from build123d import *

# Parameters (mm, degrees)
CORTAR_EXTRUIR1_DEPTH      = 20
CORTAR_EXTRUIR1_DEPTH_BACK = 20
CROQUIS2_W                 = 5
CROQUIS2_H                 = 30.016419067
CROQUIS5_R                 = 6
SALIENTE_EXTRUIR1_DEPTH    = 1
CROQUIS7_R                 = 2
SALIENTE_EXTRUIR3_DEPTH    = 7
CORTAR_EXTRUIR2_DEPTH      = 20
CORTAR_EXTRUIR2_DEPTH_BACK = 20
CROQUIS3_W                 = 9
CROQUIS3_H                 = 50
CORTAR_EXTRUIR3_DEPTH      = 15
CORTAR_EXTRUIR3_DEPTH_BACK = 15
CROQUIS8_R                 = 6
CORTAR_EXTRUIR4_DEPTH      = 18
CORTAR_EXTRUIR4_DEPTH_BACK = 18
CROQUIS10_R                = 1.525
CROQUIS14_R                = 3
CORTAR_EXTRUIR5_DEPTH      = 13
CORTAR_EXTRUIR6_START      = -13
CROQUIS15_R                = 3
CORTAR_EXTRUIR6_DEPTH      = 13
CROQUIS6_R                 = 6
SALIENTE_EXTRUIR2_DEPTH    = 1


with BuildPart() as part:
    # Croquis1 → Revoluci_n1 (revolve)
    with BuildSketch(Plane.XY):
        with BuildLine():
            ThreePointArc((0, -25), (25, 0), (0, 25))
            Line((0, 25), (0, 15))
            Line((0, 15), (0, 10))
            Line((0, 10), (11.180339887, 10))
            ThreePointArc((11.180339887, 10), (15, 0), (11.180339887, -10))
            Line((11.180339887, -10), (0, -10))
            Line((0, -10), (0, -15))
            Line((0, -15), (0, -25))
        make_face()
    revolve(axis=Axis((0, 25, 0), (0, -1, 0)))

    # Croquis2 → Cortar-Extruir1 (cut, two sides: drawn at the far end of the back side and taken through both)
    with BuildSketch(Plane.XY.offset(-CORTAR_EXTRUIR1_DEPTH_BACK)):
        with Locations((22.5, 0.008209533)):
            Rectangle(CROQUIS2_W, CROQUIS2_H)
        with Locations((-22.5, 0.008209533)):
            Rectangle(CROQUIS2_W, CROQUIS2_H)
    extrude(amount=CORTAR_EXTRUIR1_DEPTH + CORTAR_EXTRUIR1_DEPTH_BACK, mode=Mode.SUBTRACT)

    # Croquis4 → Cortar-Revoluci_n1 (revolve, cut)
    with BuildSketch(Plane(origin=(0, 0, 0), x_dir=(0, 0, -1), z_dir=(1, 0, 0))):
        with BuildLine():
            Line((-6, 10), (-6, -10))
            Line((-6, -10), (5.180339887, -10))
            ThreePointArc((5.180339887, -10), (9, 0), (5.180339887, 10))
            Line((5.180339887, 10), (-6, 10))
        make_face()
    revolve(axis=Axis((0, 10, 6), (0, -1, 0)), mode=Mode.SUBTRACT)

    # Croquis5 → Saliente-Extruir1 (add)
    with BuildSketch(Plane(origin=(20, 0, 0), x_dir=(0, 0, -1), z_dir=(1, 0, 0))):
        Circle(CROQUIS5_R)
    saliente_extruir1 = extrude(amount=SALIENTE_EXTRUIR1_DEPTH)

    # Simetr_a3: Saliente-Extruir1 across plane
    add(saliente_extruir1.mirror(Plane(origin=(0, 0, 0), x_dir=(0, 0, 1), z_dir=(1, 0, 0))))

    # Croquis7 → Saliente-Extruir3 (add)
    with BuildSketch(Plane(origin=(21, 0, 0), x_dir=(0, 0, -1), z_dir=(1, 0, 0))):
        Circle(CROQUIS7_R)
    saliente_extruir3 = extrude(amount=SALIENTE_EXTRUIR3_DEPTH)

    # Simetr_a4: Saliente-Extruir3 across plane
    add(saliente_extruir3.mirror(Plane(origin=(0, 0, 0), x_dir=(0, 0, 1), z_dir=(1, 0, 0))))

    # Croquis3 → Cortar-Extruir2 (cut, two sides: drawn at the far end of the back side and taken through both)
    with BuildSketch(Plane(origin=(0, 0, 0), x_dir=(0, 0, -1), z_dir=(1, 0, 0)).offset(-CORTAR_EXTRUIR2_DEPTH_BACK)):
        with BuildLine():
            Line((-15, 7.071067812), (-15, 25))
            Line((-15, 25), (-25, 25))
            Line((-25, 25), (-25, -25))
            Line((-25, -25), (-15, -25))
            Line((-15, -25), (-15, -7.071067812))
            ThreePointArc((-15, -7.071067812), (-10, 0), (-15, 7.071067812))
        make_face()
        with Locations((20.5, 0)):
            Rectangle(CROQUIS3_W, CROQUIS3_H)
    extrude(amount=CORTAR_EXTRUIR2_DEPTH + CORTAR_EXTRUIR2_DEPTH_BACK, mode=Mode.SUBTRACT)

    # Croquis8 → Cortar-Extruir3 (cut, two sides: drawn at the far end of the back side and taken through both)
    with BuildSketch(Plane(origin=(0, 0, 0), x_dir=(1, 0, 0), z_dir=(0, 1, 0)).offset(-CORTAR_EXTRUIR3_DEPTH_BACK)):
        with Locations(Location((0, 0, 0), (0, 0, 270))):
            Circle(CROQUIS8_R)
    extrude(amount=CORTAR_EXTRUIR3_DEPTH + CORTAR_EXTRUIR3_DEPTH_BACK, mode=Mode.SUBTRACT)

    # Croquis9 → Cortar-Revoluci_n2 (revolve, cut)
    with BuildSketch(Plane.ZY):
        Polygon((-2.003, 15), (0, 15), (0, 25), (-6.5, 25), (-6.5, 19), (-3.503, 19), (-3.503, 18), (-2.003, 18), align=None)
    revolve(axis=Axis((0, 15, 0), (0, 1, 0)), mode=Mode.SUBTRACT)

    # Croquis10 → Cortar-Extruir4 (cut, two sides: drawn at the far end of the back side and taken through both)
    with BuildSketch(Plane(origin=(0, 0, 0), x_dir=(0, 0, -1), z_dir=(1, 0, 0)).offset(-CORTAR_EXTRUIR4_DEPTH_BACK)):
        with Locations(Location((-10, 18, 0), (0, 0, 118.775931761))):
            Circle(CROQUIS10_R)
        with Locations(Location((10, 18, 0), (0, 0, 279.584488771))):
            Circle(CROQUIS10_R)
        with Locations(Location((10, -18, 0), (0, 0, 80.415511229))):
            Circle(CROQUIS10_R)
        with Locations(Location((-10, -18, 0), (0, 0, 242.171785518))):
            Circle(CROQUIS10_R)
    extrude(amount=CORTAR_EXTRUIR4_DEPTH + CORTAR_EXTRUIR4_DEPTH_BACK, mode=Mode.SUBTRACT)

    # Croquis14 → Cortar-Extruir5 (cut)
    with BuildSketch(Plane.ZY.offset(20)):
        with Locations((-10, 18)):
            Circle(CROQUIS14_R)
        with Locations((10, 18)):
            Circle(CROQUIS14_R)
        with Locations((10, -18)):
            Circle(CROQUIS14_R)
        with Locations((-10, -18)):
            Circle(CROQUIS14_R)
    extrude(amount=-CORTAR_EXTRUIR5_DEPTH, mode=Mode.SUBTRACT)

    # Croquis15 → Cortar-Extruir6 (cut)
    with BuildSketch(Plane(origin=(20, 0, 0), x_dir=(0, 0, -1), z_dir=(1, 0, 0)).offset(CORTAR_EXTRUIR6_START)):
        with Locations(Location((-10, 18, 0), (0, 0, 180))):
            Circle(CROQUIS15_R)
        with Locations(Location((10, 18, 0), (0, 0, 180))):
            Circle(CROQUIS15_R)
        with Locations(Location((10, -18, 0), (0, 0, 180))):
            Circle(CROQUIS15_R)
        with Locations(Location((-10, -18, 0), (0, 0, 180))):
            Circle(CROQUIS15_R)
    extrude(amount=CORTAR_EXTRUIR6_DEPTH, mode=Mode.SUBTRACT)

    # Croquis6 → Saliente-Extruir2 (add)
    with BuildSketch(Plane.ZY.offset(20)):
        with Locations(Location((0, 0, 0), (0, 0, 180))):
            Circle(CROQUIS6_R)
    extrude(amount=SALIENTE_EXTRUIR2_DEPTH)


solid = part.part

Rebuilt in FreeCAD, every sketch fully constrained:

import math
import FreeCAD as App
import Part
import Sketcher

V = App.Vector

doc = App.newDocument("Part")
body = doc.addObject("PartDesign::Body", "Body")

# Sketch on XY plane
sketch1 = body.newObject("Sketcher::SketchObject", "Sketch")
sketch1.AttachmentSupport = (doc.getObject("XY_Plane"), [""])
sketch1.MapMode = "FlatFace"
sketch1.addGeometry([
    Part.ArcOfCircle(Part.Circle(V(0, 0, 0), V(0, 0, 1), 25), math.radians(-90), math.radians(90)),  # 0
    Part.LineSegment(V(0, 25, 0), V(0, 10, 0)),  # 1
    Part.LineSegment(V(0, 10, 0), V(11.18034, 10, 0)),  # 2
    Part.ArcOfCircle(Part.Circle(V(0, 0, 0), V(0, 0, 1), 15), math.radians(-41.810315), math.radians(41.810315)),  # 3
    Part.LineSegment(V(11.18034, -10, 0), V(0, -10, 0)),  # 4
    Part.LineSegment(V(0, -10, 0), V(0, -25, 0)),  # 5
], False)
sketch1.addConstraint([
    Sketcher.Constraint("Coincident", 0, 2, 1, 1),
    Sketcher.Constraint("Coincident", 1, 2, 2, 1),
    Sketcher.Constraint("Coincident", 2, 2, 3, 2),
    Sketcher.Constraint("Coincident", 3, 1, 4, 1),
    Sketcher.Constraint("Coincident", 4, 2, 5, 1),
    Sketcher.Constraint("Coincident", 5, 2, 0, 1),
    Sketcher.Constraint("Vertical", 1),
    Sketcher.Constraint("Horizontal", 2),
    Sketcher.Constraint("Horizontal", 4),
    Sketcher.Constraint("Vertical", 5),
    Sketcher.Constraint("Coincident", 0, 3, -1, 1),
    Sketcher.Constraint("Coincident", 3, 3, -1, 1),
    Sketcher.Constraint("Symmetric", 1, 2, 4, 2, -1, 1),
    Sketcher.Constraint("PointOnObject", 0, 2, -2),
    Sketcher.Constraint("Radius", 0, 25.0),
    Sketcher.Constraint("Radius", 3, 15.0),
    Sketcher.Constraint("DistanceY", 1, 2, 1, 1, 15.0),
])
revolution = body.newObject("PartDesign::Revolution", "Revolution")
revolution.Profile = sketch1
revolution.ReferenceAxis = (sketch1, ["V_Axis"])
revolution.Angle = 360

# Sketch on XY plane
sketch2 = body.newObject("Sketcher::SketchObject", "Sketch001")
sketch2.AttachmentSupport = (doc.getObject("XY_Plane"), [""])
sketch2.MapMode = "FlatFace"
sketch2.addGeometry([
    Part.LineSegment(V(20, 15.016419, 0), V(20, -15, 0)),  # 0
    Part.LineSegment(V(20, -15, 0), V(25, -15, 0)),  # 1
    Part.LineSegment(V(25, -15, 0), V(25, 15.016419, 0)),  # 2
    Part.LineSegment(V(25, 15.016419, 0), V(20, 15.016419, 0)),  # 3
    Part.LineSegment(V(-25, 15.016419, 0), V(-25, -15, 0)),  # 4
    Part.LineSegment(V(-25, -15, 0), V(-20, -15, 0)),  # 5
    Part.LineSegment(V(-20, -15, 0), V(-20, 15.016419, 0)),  # 6
    Part.LineSegment(V(-20, 15.016419, 0), V(-25, 15.016419, 0)),  # 7
], False)
sketch2.addConstraint([
    Sketcher.Constraint("Coincident", 0, 2, 1, 1),
    Sketcher.Constraint("Coincident", 1, 2, 2, 1),
    Sketcher.Constraint("Coincident", 2, 2, 3, 1),
    Sketcher.Constraint("Coincident", 3, 2, 0, 1),
    Sketcher.Constraint("Coincident", 4, 2, 5, 1),
    Sketcher.Constraint("Coincident", 5, 2, 6, 1),
    Sketcher.Constraint("Coincident", 6, 2, 7, 1),
    Sketcher.Constraint("Coincident", 7, 2, 4, 1),
    Sketcher.Constraint("Vertical", 0),
    Sketcher.Constraint("Horizontal", 1),
    Sketcher.Constraint("Vertical", 2),
    Sketcher.Constraint("Horizontal", 3),
    Sketcher.Constraint("Vertical", 4),
    Sketcher.Constraint("Horizontal", 5),
    Sketcher.Constraint("Vertical", 6),
    Sketcher.Constraint("Horizontal", 7),
    Sketcher.Constraint("Symmetric", 1, 2, 4, 2, -2),
    Sketcher.Constraint("Symmetric", 3, 2, 6, 2, -2),
    Sketcher.Constraint("DistanceX", 1, 1, 1, 2, 5.0),
    Sketcher.Constraint("DistanceX", -1, 1, 0, 2, 20.0),
    Sketcher.Constraint("DistanceY", 0, 2, -1, 1, 15.0),
    Sketcher.Constraint("DistanceY", 0, 2, 0, 1, 30.016419),
])
pocket1 = body.newObject("PartDesign::Pocket", "Pocket")
pocket1.Profile = sketch2
pocket1.Type = "ThroughAll"
pocket1.Midplane = True

# Sketch on YZ plane
sketch3 = body.newObject("Sketcher::SketchObject", "Sketch002")
sketch3.AttachmentSupport = (doc.getObject("YZ_Plane"), [""])
sketch3.MapMode = "FlatFace"
sketch3.addGeometry([
    Part.LineSegment(V(10, 6, 0), V(-10, 6, 0)),
    Part.LineSegment(V(-10, 6, 0), V(-10, -5.18034, 0)),
    Part.ArcOfCircle(Part.Circle(V(0, 6, 0), V(0, 0, 1), 15), math.radians(-131.810315), math.radians(-48.189685)),
    Part.LineSegment(V(10, -5.18034, 0), V(10, 6, 0)),
], False)
sketch3.addGeometry(Part.LineSegment(V(10, 6, 0), V(-10, 6, 0)), True)  # axis
sketch3.addConstraint([
    Sketcher.Constraint("Coincident", 0, 2, 1, 1),
    Sketcher.Constraint("Coincident", 1, 2, 2, 1),
    Sketcher.Constraint("Coincident", 2, 2, 3, 1),
    Sketcher.Constraint("Coincident", 3, 2, 0, 1),
    Sketcher.Constraint("Horizontal", 0),
    Sketcher.Constraint("Vertical", 1),
    Sketcher.Constraint("Vertical", 3),
    Sketcher.Constraint("Horizontal", 4),
    Sketcher.Constraint("Coincident", 4, 1, 3, 2),
    Sketcher.Constraint("Symmetric", 1, 2, 2, 2, -2),
    Sketcher.Constraint("Horizontal", 2, 3, 0, 2),
    Sketcher.Constraint("Vertical", 1, 2, 4, 2),
    Sketcher.Constraint("Radius", 2, 15.0),
    Sketcher.Constraint("DistanceX", 0, 2, 0, 1, 20.0),
    Sketcher.Constraint("DistanceY", -1, 1, 2, 3, 6.0),
])
groove = body.newObject("PartDesign::Groove", "Groove")
groove.Profile = sketch3
groove.ReferenceAxis = (sketch3, ["Axis0"])
groove.Angle = 360

# Sketch on YZ plane
sketch4 = body.newObject("Sketcher::SketchObject", "Sketch003")
sketch4.AttachmentSupport = (doc.getObject("YZ_Plane"), [""])
sketch4.MapMode = "FlatFace"
sketch4.AttachmentOffset = App.Placement(V(0, 0, 20), App.Rotation())
sketch4.addGeometry(Part.Circle(V(0, 0, 0), V(0, 0, 1), 6), False)
sketch4.addConstraint([
    Sketcher.Constraint("Coincident", 0, 3, -1, 1),
    Sketcher.Constraint("Diameter", 0, 12.0),
])
pad1 = body.newObject("PartDesign::Pad", "Pad")
pad1.Profile = sketch4
pad1.Length = 1
doc.recompute()

mirrored = body.newObject("PartDesign::Mirrored", "Mirrored")
mirrored.Originals = [pad1]
mirrored.MirrorPlane = (doc.getObject("YZ_Plane"), [""])
body.Tip = mirrored

# Sketch on YZ plane
sketch5 = body.newObject("Sketcher::SketchObject", "Sketch004")
sketch5.AttachmentSupport = (doc.getObject("YZ_Plane"), [""])
sketch5.MapMode = "FlatFace"
sketch5.AttachmentOffset = App.Placement(V(0, 0, 21), App.Rotation())
sketch5.addGeometry(Part.Circle(V(0, 0, 0), V(0, 0, 1), 2), False)
sketch5.addConstraint([
    Sketcher.Constraint("Coincident", 0, 3, -1, 1),
    Sketcher.Constraint("Diameter", 0, 4.0),
])
pad2 = body.newObject("PartDesign::Pad", "Pad001")
pad2.Profile = sketch5
pad2.Length = 7
doc.recompute()

mirrored2 = body.newObject("PartDesign::Mirrored", "Mirrored001")
mirrored2.Originals = [pad2]
mirrored2.MirrorPlane = (doc.getObject("YZ_Plane"), [""])
body.Tip = mirrored2

# Sketch on YZ plane
sketch6 = body.newObject("Sketcher::SketchObject", "Sketch005")
sketch6.AttachmentSupport = (doc.getObject("YZ_Plane"), [""])
sketch6.MapMode = "FlatFace"
sketch6.addGeometry([
    Part.LineSegment(V(7.071068, 15, 0), V(25, 15, 0)),  # 0
    Part.LineSegment(V(25, 15, 0), V(25, 25, 0)),  # 1
    Part.LineSegment(V(25, 25, 0), V(-25, 25, 0)),  # 2
    Part.LineSegment(V(-25, 25, 0), V(-25, 15, 0)),  # 3
    Part.LineSegment(V(-25, 15, 0), V(-7.071068, 15, 0)),  # 4
    Part.ArcOfCircle(Part.Circle(V(0, 17.5, 0), V(0, 0, 1), 7.5), math.radians(-160.528779), math.radians(-19.471221)),  # 5
    Part.LineSegment(V(25, -16, 0), V(-25, -16, 0)),  # 6
    Part.LineSegment(V(-25, -16, 0), V(-25, -25, 0)),  # 7
    Part.LineSegment(V(-25, -25, 0), V(25, -25, 0)),  # 8
    Part.LineSegment(V(25, -25, 0), V(25, -16, 0)),  # 9
], False)
sketch6.addConstraint([
    Sketcher.Constraint("Coincident", 0, 2, 1, 1),
    Sketcher.Constraint("Coincident", 1, 2, 2, 1),
    Sketcher.Constraint("Coincident", 2, 2, 3, 1),
    Sketcher.Constraint("Coincident", 3, 2, 4, 1),
    Sketcher.Constraint("Coincident", 4, 2, 5, 1),
    Sketcher.Constraint("Coincident", 5, 2, 0, 1),
    Sketcher.Constraint("Coincident", 6, 2, 7, 1),
    Sketcher.Constraint("Coincident", 7, 2, 8, 1),
    Sketcher.Constraint("Coincident", 8, 2, 9, 1),
    Sketcher.Constraint("Coincident", 9, 2, 6, 1),
    Sketcher.Constraint("Horizontal", 0),
    Sketcher.Constraint("Vertical", 1),
    Sketcher.Constraint("Horizontal", 2),
    Sketcher.Constraint("Vertical", 3),
    Sketcher.Constraint("Horizontal", 4),
    Sketcher.Constraint("Horizontal", 6),
    Sketcher.Constraint("Vertical", 7),
    Sketcher.Constraint("Horizontal", 8),
    Sketcher.Constraint("Vertical", 9),
    Sketcher.Constraint("Symmetric", 1, 2, 7, 2, -1, 1),
    Sketcher.Constraint("Symmetric", 0, 2, 3, 2, -2),
    Sketcher.Constraint("PointOnObject", 5, 3, -2),
    Sketcher.Constraint("Vertical", 1, 2, 8, 2),
    Sketcher.Constraint("Radius", 5, 7.5),
    Sketcher.Constraint("DistanceX", 2, 2, 2, 1, 50.0),
    Sketcher.Constraint("DistanceY", 1, 1, 1, 2, 10.0),
    Sketcher.Constraint("DistanceY", 7, 2, 7, 1, 9.0),
    Sketcher.Constraint("DistanceY", -1, 1, 0, 2, 15.0),
    Sketcher.Constraint("DistanceY", -1, 1, 5, 3, 17.5),
])
pocket2 = body.newObject("PartDesign::Pocket", "Pocket001")
pocket2.Profile = sketch6
pocket2.Type = "ThroughAll"
pocket2.Midplane = True

# Sketch on XZ plane
sketch7 = body.newObject("Sketcher::SketchObject", "Sketch006")
sketch7.AttachmentSupport = (doc.getObject("XZ_Plane"), [""])
sketch7.MapMode = "FlatFace"
sketch7.addGeometry(Part.Circle(V(0, 0, 0), V(0, 0, 1), 6), False)
sketch7.addConstraint([
    Sketcher.Constraint("Coincident", 0, 3, -1, 1),
    Sketcher.Constraint("Diameter", 0, 12.0),
])
pocket3 = body.newObject("PartDesign::Pocket", "Pocket002")
pocket3.Profile = sketch7
pocket3.Type = "TwoLengths"
pocket3.Length = 15
pocket3.Length2 = 15

# Sketch on YZ plane
sketch8 = body.newObject("Sketcher::SketchObject", "Sketch007")
sketch8.AttachmentSupport = (doc.getObject("YZ_Plane"), [""])
sketch8.MapMode = "FlatFace"
sketch8.addGeometry([
    Part.LineSegment(V(15, -2.003, 0), V(15, 0, 0)),  # 0
    Part.LineSegment(V(15, 0, 0), V(25, 0, 0)),  # 1
    Part.LineSegment(V(25, 0, 0), V(25, -6.5, 0)),  # 2
    Part.LineSegment(V(25, -6.5, 0), V(19, -6.5, 0)),  # 3
    Part.LineSegment(V(19, -6.5, 0), V(19, -3.503, 0)),  # 4
    Part.LineSegment(V(19, -3.503, 0), V(18, -3.503, 0)),  # 5
    Part.LineSegment(V(18, -3.503, 0), V(18, -2.003, 0)),  # 6
    Part.LineSegment(V(18, -2.003, 0), V(15, -2.003, 0)),  # 7
], False)
sketch8.addConstraint([
    Sketcher.Constraint("Coincident", 0, 2, 1, 1),
    Sketcher.Constraint("Coincident", 1, 2, 2, 1),
    Sketcher.Constraint("Coincident", 2, 2, 3, 1),
    Sketcher.Constraint("Coincident", 3, 2, 4, 1),
    Sketcher.Constraint("Coincident", 4, 2, 5, 1),
    Sketcher.Constraint("Coincident", 5, 2, 6, 1),
    Sketcher.Constraint("Coincident", 6, 2, 7, 1),
    Sketcher.Constraint("Coincident", 7, 2, 0, 1),
    Sketcher.Constraint("Vertical", 0),
    Sketcher.Constraint("Horizontal", 1),
    Sketcher.Constraint("Vertical", 2),
    Sketcher.Constraint("Horizontal", 3),
    Sketcher.Constraint("Vertical", 4),
    Sketcher.Constraint("Horizontal", 5),
    Sketcher.Constraint("Vertical", 6),
    Sketcher.Constraint("Horizontal", 7),
    Sketcher.Constraint("PointOnObject", 0, 2, -1),
    Sketcher.Constraint("DistanceX", 1, 1, 1, 2, 10.0),
    Sketcher.Constraint("DistanceX", 3, 2, 3, 1, 6.0),
    Sketcher.Constraint("DistanceX", 5, 2, 5, 1, 1.0),
    Sketcher.Constraint("DistanceY", 2, 2, 2, 1, 6.5),
    Sketcher.Constraint("DistanceY", 6, 1, 6, 2, 1.5),
    Sketcher.Constraint("DistanceX", -1, 1, 0, 2, 15.0),
    Sketcher.Constraint("DistanceY", 0, 1, 0, 2, 2.003),
])
groove2 = body.newObject("PartDesign::Groove", "Groove001")
groove2.Profile = sketch8
groove2.ReferenceAxis = (sketch8, ["H_Axis"])
groove2.Angle = 360

# Sketch on YZ plane
sketch9 = body.newObject("Sketcher::SketchObject", "Sketch008")
sketch9.AttachmentSupport = (doc.getObject("YZ_Plane"), [""])
sketch9.MapMode = "FlatFace"
sketch9.addGeometry([
    Part.Circle(V(18, 10, 0), V(0, 0, 1), 1.525),
    Part.Circle(V(18, -10, 0), V(0, 0, 1), 1.525),
    Part.Circle(V(-18, -10, 0), V(0, 0, 1), 1.525),
    Part.Circle(V(-18, 10, 0), V(0, 0, 1), 1.525),
], False)
sketch9.addConstraint([
    Sketcher.Constraint("Equal", 0, 1),
    Sketcher.Constraint("Equal", 1, 2),
    Sketcher.Constraint("Equal", 2, 3),
    Sketcher.Constraint("Symmetric", 0, 3, 2, 3, -1, 1),
    Sketcher.Constraint("Symmetric", 1, 3, 3, 3, -1, 1),
    Sketcher.Constraint("Symmetric", 1, 3, 2, 3, -2),
    Sketcher.Constraint("Diameter", 0, 3.05),
    Sketcher.Constraint("DistanceX", -1, 1, 0, 3, 18.0),
    Sketcher.Constraint("DistanceY", -1, 1, 0, 3, 10.0),
])
pocket4 = body.newObject("PartDesign::Pocket", "Pocket003")
pocket4.Profile = sketch9
pocket4.Type = "ThroughAll"
pocket4.Midplane = True

# Sketch on YZ plane
sketch10 = body.newObject("Sketcher::SketchObject", "Sketch009")
sketch10.AttachmentSupport = (doc.getObject("YZ_Plane"), [""])
sketch10.MapMode = "FlatFace"
sketch10.AttachmentOffset = App.Placement(V(0, 0, -20), App.Rotation())
sketch10.addGeometry([
    Part.Circle(V(18, -10, 0), V(0, 0, 1), 3),
    Part.Circle(V(18, 10, 0), V(0, 0, 1), 3),
    Part.Circle(V(-18, 10, 0), V(0, 0, 1), 3),
    Part.Circle(V(-18, -10, 0), V(0, 0, 1), 3),
], False)
sketch10.addConstraint([
    Sketcher.Constraint("Equal", 0, 1),
    Sketcher.Constraint("Equal", 1, 2),
    Sketcher.Constraint("Equal", 2, 3),
    Sketcher.Constraint("Symmetric", 0, 3, 2, 3, -1, 1),
    Sketcher.Constraint("Symmetric", 1, 3, 3, 3, -1, 1),
    Sketcher.Constraint("Symmetric", 1, 3, 2, 3, -2),
    Sketcher.Constraint("Diameter", 0, 6.0),
    Sketcher.Constraint("DistanceX", -1, 1, 0, 3, 18.0),
    Sketcher.Constraint("DistanceY", 0, 3, -1, 1, 10.0),
])
pocket5 = body.newObject("PartDesign::Pocket", "Pocket004")
pocket5.Profile = sketch10
pocket5.Length = 13
pocket5.Reversed = True

# Sketch on YZ plane
sketch11 = body.newObject("Sketcher::SketchObject", "Sketch010")
sketch11.AttachmentSupport = (doc.getObject("YZ_Plane"), [""])
sketch11.MapMode = "FlatFace"
sketch11.AttachmentOffset = App.Placement(V(0, 0, 7), App.Rotation())
sketch11.addGeometry([
    Part.Circle(V(18, 10, 0), V(0, 0, 1), 3),
    Part.Circle(V(18, -10, 0), V(0, 0, 1), 3),
    Part.Circle(V(-18, -10, 0), V(0, 0, 1), 3),
    Part.Circle(V(-18, 10, 0), V(0, 0, 1), 3),
], False)
sketch11.addConstraint([
    Sketcher.Constraint("Equal", 0, 1),
    Sketcher.Constraint("Equal", 1, 2),
    Sketcher.Constraint("Equal", 2, 3),
    Sketcher.Constraint("Symmetric", 0, 3, 2, 3, -1, 1),
    Sketcher.Constraint("Symmetric", 1, 3, 3, 3, -1, 1),
    Sketcher.Constraint("Symmetric", 1, 3, 2, 3, -2),
    Sketcher.Constraint("Diameter", 0, 6.0),
    Sketcher.Constraint("DistanceX", -1, 1, 0, 3, 18.0),
    Sketcher.Constraint("DistanceY", -1, 1, 0, 3, 10.0),
])
pocket6 = body.newObject("PartDesign::Pocket", "Pocket005")
pocket6.Profile = sketch11
pocket6.Length = 13
pocket6.Reversed = True

# Sketch on YZ plane
sketch12 = body.newObject("Sketcher::SketchObject", "Sketch011")
sketch12.AttachmentSupport = (doc.getObject("YZ_Plane"), [""])
sketch12.MapMode = "FlatFace"
sketch12.AttachmentOffset = App.Placement(V(0, 0, -20), App.Rotation())
sketch12.addGeometry(Part.Circle(V(0, 0, 0), V(0, 0, 1), 6), False)
sketch12.addConstraint([
    Sketcher.Constraint("Coincident", 0, 3, -1, 1),
    Sketcher.Constraint("Diameter", 0, 12.0),
])
pad3 = body.newObject("PartDesign::Pad", "Pad002")
pad3.Profile = sketch12
pad3.Length = 1
pad3.Reversed = True

doc.recompute()
